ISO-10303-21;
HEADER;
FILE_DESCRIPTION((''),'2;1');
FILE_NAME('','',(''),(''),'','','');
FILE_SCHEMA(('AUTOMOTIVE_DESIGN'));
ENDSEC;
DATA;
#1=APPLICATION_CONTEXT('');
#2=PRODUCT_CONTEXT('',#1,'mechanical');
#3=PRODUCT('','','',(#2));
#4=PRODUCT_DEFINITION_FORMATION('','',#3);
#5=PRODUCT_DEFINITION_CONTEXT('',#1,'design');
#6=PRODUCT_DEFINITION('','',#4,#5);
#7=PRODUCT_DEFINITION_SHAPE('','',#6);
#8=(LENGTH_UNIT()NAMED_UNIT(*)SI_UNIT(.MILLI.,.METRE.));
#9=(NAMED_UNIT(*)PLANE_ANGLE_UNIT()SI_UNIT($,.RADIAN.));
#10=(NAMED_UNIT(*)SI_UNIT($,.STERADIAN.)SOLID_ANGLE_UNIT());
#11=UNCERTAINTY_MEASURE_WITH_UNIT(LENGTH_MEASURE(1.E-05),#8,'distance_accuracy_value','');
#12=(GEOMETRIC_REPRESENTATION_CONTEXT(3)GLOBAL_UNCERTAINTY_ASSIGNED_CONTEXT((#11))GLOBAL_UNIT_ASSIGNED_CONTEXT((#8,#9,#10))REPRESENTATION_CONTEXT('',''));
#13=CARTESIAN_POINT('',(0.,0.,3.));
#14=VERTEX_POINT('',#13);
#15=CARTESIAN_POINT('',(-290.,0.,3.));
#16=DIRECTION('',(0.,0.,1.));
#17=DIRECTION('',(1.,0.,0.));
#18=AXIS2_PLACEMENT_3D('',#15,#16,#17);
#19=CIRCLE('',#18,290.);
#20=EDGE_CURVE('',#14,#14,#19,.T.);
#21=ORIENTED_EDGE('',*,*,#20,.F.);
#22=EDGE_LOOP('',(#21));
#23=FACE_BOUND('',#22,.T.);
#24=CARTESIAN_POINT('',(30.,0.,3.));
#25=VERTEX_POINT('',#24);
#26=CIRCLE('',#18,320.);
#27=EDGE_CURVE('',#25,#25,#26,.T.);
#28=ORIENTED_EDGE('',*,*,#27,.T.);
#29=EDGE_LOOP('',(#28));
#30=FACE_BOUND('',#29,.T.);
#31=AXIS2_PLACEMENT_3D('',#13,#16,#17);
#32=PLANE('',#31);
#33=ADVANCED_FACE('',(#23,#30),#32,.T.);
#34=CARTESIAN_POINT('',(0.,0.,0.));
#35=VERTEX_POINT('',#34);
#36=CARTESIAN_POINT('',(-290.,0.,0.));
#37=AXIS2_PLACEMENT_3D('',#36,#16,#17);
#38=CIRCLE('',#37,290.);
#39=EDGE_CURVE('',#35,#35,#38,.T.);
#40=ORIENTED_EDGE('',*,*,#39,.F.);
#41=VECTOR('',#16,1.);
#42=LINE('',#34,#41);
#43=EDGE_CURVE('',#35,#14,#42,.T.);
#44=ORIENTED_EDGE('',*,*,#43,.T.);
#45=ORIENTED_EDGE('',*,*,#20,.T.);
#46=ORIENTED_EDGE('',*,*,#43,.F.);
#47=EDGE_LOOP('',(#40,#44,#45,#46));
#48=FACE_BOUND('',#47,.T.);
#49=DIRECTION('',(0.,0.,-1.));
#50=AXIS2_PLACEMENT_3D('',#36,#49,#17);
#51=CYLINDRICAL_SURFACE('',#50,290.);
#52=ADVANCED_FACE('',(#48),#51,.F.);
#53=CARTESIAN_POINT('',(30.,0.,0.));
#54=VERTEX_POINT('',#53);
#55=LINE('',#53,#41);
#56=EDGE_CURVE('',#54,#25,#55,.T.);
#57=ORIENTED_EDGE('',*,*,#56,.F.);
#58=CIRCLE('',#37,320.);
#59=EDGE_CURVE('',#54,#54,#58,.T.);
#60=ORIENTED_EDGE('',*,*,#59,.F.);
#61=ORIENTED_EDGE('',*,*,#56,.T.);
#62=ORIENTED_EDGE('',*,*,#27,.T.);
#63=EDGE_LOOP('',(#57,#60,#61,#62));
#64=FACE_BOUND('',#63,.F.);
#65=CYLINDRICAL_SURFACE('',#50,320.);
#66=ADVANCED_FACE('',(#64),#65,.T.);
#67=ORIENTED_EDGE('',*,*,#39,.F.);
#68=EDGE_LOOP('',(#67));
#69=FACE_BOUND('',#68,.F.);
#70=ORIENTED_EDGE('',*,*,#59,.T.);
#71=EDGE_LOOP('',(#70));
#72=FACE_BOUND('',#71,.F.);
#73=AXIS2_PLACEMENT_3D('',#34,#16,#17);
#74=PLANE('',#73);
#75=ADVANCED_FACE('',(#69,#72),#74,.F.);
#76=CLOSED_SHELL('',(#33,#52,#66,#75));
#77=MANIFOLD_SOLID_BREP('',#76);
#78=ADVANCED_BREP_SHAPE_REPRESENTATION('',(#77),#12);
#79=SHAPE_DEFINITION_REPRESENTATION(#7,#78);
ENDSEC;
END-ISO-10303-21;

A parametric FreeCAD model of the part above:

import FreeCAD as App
import Part
import Sketcher

V = App.Vector

doc = App.newDocument("Part")
body = doc.addObject("PartDesign::Body", "Body")

sketch1 = body.newObject("Sketcher::SketchObject", "Sketch")
sketch1.AttachmentSupport = (doc.getObject("XY_Plane"), [""])
sketch1.MapMode = "FlatFace"
sketch1.addGeometry([
    Part.Circle(V(-290, 0, 0), V(0, 0, 1), 320),
    Part.Circle(V(-290, 0, 0), V(0, 0, 1), 290),
], False)
sketch1.addConstraint([
    Sketcher.Constraint("Coincident", 1, 3, 0, 3),
    Sketcher.Constraint("PointOnObject", 0, 3, -1),
    Sketcher.Constraint("Diameter", 0, 640.0),
    Sketcher.Constraint("Diameter", 1, 580.0),
    Sketcher.Constraint("DistanceX", 0, 3, -1, 1, 290.0),
])
pad1 = body.newObject("PartDesign::Pad", "Pad")
pad1.Profile = sketch1
pad1.Length = 3

doc.recompute()
